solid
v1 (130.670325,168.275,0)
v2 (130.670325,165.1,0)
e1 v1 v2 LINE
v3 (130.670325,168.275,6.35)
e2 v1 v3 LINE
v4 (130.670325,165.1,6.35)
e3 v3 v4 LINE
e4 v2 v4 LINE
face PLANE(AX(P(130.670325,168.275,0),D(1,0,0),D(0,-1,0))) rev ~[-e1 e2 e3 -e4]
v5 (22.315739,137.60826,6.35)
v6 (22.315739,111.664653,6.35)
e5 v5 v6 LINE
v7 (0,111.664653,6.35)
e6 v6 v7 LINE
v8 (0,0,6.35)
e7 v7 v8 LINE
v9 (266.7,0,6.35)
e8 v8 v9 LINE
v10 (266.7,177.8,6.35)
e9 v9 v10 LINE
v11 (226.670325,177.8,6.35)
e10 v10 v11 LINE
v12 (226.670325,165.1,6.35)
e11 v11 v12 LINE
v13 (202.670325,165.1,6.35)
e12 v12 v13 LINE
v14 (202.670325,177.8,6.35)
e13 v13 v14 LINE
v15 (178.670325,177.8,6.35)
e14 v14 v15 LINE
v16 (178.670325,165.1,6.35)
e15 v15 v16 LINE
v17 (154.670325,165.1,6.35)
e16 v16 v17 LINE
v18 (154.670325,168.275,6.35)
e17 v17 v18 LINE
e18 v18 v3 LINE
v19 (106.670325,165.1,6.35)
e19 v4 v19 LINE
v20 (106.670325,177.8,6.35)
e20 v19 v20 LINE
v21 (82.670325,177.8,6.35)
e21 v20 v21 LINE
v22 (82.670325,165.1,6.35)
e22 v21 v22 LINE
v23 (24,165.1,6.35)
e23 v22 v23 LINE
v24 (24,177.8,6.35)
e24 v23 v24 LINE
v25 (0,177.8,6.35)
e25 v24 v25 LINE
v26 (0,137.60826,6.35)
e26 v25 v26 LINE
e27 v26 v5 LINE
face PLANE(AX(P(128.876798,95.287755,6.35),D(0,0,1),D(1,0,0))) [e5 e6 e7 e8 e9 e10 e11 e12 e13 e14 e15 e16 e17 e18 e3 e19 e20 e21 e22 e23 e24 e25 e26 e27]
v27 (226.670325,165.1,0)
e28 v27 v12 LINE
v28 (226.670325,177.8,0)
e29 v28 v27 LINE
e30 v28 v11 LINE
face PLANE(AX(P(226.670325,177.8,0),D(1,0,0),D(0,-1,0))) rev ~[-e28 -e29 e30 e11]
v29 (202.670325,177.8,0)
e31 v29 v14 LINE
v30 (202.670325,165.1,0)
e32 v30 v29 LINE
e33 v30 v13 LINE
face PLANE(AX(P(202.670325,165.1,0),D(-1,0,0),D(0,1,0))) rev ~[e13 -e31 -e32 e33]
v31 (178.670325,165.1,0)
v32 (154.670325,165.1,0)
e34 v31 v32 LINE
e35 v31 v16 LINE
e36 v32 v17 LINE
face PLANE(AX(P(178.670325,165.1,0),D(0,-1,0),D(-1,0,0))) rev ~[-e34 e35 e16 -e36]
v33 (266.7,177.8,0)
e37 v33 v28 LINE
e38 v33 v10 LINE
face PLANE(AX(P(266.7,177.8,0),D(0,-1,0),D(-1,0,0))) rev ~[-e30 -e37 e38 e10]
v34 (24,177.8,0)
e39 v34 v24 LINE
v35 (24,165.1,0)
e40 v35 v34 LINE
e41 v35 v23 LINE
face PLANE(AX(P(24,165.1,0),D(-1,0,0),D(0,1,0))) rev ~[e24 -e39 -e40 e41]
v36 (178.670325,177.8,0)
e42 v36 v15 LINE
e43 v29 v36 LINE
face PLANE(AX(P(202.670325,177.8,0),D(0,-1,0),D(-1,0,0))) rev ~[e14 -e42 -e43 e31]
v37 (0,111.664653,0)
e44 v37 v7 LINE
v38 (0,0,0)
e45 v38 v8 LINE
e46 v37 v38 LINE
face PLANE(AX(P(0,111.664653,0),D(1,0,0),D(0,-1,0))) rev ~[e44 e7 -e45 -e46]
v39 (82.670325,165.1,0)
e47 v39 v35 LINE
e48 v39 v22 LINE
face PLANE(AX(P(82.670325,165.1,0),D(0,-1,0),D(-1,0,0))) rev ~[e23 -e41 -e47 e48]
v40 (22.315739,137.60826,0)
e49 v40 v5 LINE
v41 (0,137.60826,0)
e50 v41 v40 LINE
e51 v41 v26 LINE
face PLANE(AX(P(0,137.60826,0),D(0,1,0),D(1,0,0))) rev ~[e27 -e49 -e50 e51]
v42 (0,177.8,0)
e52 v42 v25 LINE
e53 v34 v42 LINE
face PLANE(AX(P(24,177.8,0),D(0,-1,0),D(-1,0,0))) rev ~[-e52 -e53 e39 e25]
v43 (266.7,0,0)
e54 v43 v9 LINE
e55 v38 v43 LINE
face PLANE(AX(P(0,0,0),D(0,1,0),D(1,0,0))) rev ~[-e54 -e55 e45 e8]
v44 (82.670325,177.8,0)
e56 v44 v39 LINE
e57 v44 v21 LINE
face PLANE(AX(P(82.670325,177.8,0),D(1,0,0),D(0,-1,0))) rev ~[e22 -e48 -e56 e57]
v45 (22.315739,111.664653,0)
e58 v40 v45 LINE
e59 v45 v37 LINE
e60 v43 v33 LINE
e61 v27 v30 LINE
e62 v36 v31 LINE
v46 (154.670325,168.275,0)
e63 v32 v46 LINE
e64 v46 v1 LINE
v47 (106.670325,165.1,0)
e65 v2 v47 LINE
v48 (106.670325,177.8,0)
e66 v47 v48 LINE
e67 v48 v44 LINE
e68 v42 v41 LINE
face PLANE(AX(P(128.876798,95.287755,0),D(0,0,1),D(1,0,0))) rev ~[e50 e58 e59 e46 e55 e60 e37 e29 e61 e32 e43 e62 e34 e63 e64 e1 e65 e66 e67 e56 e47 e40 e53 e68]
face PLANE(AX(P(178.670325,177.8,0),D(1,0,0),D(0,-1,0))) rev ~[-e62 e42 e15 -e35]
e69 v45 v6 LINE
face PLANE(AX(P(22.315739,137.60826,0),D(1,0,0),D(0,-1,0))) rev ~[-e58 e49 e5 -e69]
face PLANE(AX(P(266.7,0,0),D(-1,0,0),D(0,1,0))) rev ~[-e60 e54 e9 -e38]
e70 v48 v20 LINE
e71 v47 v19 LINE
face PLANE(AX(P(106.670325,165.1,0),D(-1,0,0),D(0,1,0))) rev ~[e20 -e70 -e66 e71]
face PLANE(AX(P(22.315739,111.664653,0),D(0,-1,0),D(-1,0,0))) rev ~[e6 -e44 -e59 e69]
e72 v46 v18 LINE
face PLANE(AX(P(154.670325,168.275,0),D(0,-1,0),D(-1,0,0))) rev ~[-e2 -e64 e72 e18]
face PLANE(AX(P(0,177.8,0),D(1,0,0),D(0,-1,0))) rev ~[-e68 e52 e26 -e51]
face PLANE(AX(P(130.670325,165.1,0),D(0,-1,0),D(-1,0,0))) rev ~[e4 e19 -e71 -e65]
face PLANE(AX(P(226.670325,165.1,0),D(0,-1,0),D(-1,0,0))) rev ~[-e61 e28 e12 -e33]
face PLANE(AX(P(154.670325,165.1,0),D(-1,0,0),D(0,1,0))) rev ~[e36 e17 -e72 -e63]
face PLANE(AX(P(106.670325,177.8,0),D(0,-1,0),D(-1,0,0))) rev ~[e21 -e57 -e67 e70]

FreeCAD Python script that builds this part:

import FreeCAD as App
import Part
import Sketcher
from FreeCAD import Vector
Q = App.Units.Quantity


def add_polygon(sketch, points):
    """Adds a closed chain of lines whose ends are joined by coincident constraints."""
    first, n = sketch.GeometryCount, len(points)
    for a, b in zip(points, points[1:] + points[:1]):
        sketch.addGeometry(Part.LineSegment(App.Vector(*a, 0), App.Vector(*b, 0)), False)
    for i in range(n):
        sketch.addConstraint(Sketcher.Constraint("Coincident", first + i, 2, first + (i + 1) % n, 1))

doc = App.newDocument("Part")
body = doc.addObject("PartDesign::Body", "Body")

sketch1 = body.newObject("Sketcher::SketchObject", "Sketch")
sketch1.AttachmentSupport = (doc.getObject("XY_Plane"), [""])
sketch1.MapMode = "FlatFace"
add_polygon(sketch1, [(0, 111.664653), (0, 0), (266.7, 0), (266.7, 177.8), (226.670325, 177.8), (226.670325, 165.1), (202.670325, 165.1), (202.670325, 177.8), (178.670325, 177.8), (178.670325, 165.1), (154.670325, 165.1), (154.670325, 168.275), (130.670325, 168.275), (130.670325, 165.1), (106.670325, 165.1), (106.670325, 177.8), (82.670325, 177.8), (82.670325, 165.1), (24, 165.1), (24, 177.8), (0, 177.8), (0, 137.60826), (22.315739, 137.60826), (22.315739, 111.664653)])
sketch1.addConstraint([
    Sketcher.Constraint("Vertical", 0),
    Sketcher.Constraint("Horizontal", 1),
    Sketcher.Constraint("Vertical", 2),
    Sketcher.Constraint("Horizontal", 3),
    Sketcher.Constraint("Vertical", 4),
    Sketcher.Constraint("Horizontal", 5),
    Sketcher.Constraint("Vertical", 6),
    Sketcher.Constraint("Horizontal", 7),
    Sketcher.Constraint("Vertical", 8),
    Sketcher.Constraint("Horizontal", 9),
    Sketcher.Constraint("Vertical", 10),
    Sketcher.Constraint("Horizontal", 11),
    Sketcher.Constraint("Vertical", 12),
    Sketcher.Constraint("Horizontal", 13),
    Sketcher.Constraint("Vertical", 14),
    Sketcher.Constraint("Horizontal", 15),
    Sketcher.Constraint("Vertical", 16),
    Sketcher.Constraint("Horizontal", 17),
    Sketcher.Constraint("Vertical", 18),
    Sketcher.Constraint("Horizontal", 19),
    Sketcher.Constraint("Vertical", 20),
    Sketcher.Constraint("Horizontal", 21),
    Sketcher.Constraint("Vertical", 22),
    Sketcher.Constraint("Horizontal", 23),
    Sketcher.Constraint("Coincident", 0, 2, -1, 1),
    Sketcher.Constraint("PointOnObject", 19, 2, -2),
    Sketcher.Constraint("Horizontal", 3, 2, 6, 2),
    Sketcher.Constraint("Horizontal", 5, 2, 8, 2),
    Sketcher.Constraint("Horizontal", 9, 2, 12, 2),
    Sketcher.Constraint("Horizontal", 7, 2, 14, 2),
    Sketcher.Constraint("Horizontal", 13, 2, 16, 2),
    Sketcher.Constraint("Horizontal", 15, 2, 18, 2),
    Sketcher.Constraint("Equal", 5, 7),
    Sketcher.Constraint("Equal", 7, 9),
    Sketcher.Constraint("Equal", 9, 11),
    Sketcher.Constraint("Equal", 11, 13),
    Sketcher.Constraint("Equal", 13, 15),
    Sketcher.Constraint("Equal", 15, 19),
    Sketcher.Constraint("DistanceY", 2, 1, 2, 2, Q("7 in")),
    Sketcher.Constraint("DistanceX", 1, 1, 1, 2, Q("10.5 in")),
    Sketcher.Constraint("DistanceY", 4, 2, 4, 1, Q("0.5 in")),
    Sketcher.Constraint("DistanceY", 10, 1, 10, 2, Q("0.125 in")),
    Sketcher.Constraint("DistanceX", 5, 2, 5, 1, 24.0),
    Sketcher.Constraint("DistanceX", 21, 1, 21, 2, 22.315739),
    Sketcher.Constraint("DistanceY", 20, 2, 20, 1, 40.19174),
    Sketcher.Constraint("DistanceX", 3, 2, 3, 1, 40.029675),
    Sketcher.Constraint("DistanceY", 0, 2, 0, 1, 111.664653),
])
pad1 = body.newObject("PartDesign::Pad", "Pad")
pad1.Profile = sketch1
pad1.Length = Q("0.25 in")

doc.recompute()
